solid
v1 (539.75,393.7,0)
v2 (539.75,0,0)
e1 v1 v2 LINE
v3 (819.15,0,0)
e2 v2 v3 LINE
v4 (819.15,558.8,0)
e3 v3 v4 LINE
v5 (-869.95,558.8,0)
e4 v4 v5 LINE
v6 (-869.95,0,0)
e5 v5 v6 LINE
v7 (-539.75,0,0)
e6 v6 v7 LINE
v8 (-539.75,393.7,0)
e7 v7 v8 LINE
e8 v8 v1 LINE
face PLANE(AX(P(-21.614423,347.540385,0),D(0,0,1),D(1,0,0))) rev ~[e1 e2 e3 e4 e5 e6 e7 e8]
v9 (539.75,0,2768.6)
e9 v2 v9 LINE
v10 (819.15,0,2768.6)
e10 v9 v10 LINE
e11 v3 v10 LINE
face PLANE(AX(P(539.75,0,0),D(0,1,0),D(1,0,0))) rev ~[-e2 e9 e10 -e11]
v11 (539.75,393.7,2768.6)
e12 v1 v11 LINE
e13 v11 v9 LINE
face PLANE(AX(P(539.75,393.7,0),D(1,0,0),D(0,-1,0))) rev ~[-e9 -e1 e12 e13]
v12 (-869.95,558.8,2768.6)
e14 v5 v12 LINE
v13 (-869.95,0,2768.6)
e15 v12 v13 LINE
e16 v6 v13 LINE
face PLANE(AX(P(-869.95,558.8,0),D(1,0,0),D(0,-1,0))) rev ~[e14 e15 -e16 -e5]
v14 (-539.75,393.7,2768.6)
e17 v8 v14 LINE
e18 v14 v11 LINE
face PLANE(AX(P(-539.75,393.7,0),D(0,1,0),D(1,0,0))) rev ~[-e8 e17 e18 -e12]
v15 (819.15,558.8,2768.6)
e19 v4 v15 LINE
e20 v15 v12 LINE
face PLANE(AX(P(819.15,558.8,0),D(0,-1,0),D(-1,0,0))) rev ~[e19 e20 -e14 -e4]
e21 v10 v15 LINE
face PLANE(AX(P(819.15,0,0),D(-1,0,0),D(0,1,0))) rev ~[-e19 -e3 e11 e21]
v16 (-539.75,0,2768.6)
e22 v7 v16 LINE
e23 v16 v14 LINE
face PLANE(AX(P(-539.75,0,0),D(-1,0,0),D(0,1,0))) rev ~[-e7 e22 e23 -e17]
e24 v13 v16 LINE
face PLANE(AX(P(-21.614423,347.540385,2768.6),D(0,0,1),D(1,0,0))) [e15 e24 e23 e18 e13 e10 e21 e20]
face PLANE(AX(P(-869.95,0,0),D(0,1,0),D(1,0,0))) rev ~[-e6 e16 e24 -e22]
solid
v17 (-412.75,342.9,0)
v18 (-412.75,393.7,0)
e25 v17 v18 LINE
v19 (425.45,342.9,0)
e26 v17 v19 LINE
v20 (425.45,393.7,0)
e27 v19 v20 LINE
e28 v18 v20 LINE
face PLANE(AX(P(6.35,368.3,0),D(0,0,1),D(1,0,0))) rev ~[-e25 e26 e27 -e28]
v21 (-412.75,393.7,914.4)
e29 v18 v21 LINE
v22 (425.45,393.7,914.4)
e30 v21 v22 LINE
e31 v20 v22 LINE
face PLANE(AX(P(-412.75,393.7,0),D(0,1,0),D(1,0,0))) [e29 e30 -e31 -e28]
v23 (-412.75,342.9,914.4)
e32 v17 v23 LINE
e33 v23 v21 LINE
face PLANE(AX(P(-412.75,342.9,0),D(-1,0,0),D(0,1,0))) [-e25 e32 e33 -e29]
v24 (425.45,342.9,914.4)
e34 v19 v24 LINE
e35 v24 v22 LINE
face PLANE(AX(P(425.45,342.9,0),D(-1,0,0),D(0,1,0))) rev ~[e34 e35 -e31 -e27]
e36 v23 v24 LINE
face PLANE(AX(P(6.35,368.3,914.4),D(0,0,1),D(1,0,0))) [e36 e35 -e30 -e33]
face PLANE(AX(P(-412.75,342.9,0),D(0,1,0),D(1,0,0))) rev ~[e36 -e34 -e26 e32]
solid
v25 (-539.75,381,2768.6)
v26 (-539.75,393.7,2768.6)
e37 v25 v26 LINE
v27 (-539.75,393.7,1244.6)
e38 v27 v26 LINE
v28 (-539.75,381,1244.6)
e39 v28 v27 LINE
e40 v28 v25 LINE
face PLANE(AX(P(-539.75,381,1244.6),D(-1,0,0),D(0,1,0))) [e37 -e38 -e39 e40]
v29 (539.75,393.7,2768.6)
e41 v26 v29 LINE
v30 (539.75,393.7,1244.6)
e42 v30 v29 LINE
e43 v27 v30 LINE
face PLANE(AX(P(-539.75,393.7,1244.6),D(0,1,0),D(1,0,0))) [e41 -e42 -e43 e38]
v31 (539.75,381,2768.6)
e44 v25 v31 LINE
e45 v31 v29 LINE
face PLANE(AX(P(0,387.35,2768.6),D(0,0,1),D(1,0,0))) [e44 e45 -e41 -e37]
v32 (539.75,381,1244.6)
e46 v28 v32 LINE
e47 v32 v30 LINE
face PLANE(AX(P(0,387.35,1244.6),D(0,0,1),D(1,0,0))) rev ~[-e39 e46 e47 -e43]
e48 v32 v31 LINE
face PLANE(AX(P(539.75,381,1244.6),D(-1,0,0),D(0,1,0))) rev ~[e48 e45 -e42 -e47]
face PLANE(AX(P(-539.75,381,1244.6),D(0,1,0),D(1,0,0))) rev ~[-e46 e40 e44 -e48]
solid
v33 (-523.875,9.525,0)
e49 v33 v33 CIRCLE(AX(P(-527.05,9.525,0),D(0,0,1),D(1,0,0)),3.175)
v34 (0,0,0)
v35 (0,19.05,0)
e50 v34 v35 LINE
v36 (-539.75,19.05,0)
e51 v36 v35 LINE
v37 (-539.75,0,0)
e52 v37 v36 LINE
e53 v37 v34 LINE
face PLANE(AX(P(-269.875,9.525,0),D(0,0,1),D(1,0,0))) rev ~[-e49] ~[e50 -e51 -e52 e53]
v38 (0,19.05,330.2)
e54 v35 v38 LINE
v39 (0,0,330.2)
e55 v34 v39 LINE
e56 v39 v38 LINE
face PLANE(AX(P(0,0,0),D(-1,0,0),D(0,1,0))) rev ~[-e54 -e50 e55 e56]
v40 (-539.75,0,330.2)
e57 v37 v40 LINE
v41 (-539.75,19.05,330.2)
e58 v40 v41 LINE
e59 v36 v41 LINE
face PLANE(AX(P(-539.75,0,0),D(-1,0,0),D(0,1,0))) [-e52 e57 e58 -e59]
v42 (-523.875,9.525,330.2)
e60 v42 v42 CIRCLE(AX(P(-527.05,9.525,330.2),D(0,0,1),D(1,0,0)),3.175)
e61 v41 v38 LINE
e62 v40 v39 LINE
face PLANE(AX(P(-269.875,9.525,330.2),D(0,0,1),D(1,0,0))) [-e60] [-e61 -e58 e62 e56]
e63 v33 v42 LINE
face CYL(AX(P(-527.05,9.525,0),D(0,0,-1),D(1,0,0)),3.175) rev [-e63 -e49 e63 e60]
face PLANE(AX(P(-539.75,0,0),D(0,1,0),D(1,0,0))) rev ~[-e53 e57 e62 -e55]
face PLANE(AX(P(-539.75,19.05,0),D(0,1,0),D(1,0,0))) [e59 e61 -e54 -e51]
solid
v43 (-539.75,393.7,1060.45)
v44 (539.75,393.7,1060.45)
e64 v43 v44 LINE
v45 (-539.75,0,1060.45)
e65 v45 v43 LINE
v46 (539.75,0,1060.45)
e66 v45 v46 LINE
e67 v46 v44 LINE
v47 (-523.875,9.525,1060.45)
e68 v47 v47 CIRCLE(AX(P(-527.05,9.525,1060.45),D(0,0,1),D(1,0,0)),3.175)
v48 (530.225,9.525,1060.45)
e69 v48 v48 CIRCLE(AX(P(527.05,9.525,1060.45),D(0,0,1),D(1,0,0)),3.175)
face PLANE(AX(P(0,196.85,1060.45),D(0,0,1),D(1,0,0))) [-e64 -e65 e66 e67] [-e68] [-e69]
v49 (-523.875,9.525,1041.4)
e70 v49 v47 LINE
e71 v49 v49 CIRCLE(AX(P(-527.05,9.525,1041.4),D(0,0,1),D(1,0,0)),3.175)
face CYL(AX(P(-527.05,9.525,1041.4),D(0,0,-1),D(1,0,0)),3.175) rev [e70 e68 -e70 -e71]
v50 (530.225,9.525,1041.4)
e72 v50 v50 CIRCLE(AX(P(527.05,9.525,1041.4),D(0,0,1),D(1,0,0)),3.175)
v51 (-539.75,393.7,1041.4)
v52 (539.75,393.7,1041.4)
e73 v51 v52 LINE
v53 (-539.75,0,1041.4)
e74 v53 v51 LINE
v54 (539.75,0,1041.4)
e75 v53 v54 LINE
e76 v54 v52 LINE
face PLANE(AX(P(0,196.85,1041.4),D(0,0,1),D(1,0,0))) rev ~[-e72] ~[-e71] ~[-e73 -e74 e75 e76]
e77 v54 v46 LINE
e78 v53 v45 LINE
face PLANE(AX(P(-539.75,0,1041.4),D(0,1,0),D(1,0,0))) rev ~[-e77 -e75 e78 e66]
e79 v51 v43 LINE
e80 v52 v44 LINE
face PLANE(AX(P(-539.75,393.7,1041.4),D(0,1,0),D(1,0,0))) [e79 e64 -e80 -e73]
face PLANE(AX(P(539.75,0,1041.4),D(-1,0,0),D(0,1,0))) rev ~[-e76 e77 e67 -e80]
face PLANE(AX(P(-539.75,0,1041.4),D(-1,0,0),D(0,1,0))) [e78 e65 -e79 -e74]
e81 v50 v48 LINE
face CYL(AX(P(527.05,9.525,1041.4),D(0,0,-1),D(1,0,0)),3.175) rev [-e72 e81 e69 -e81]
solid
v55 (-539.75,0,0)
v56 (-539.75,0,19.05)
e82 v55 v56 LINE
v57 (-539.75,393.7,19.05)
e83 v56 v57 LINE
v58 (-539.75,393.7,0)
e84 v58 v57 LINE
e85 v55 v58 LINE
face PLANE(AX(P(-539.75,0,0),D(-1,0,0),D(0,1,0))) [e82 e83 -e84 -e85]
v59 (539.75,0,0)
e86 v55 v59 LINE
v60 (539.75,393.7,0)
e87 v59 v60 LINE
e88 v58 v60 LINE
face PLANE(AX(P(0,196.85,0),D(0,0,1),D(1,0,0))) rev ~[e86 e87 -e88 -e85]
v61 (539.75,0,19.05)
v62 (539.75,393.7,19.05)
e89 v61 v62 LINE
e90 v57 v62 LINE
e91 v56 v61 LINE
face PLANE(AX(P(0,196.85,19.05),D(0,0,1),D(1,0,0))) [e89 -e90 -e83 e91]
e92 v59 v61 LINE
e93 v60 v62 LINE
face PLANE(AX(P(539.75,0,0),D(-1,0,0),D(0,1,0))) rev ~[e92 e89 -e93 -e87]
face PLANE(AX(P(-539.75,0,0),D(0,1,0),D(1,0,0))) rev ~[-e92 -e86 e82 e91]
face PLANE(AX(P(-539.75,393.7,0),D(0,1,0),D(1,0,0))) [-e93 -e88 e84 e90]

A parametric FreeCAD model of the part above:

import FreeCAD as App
import Part
import Sketcher

V = App.Vector
Q = App.Units.Quantity


def add_polygon(sketch, points):
    """Adds a closed chain of lines whose ends are joined by coincident constraints."""
    first, n = sketch.GeometryCount, len(points)
    for a, b in zip(points, points[1:] + points[:1]):
        sketch.addGeometry(Part.LineSegment(App.Vector(*a, 0), App.Vector(*b, 0)), False)
    for i in range(n):
        sketch.addConstraint(Sketcher.Constraint("Coincident", first + i, 2, first + (i + 1) % n, 1))

doc = App.newDocument("Part")
body = doc.addObject("PartDesign::Body", "Body")

sketch1 = doc.addObject("Sketcher::SketchObject", "Sketch")
body.addObject(sketch1)
sketch1.AttachmentSupport = (doc.XY_Plane, [""])
sketch1.MapMode = "FlatFace"
add_polygon(sketch1, [(-539.75, 0), (-539.75, 393.7), (539.75, 393.7), (539.75, 0), (819.15, 0), (819.15, 558.8), (-869.95, 558.8), (-869.95, 0)])
sketch1.addConstraint([
    Sketcher.Constraint("Vertical", 0),
    Sketcher.Constraint("Horizontal", 1),
    Sketcher.Constraint("Vertical", 2),
    Sketcher.Constraint("Horizontal", 3),
    Sketcher.Constraint("Vertical", 4),
    Sketcher.Constraint("Horizontal", 5),
    Sketcher.Constraint("Vertical", 6),
    Sketcher.Constraint("Horizontal", 7),
    Sketcher.Constraint("Symmetric", 2, 2, 7, 2, -1, 1),
    Sketcher.Constraint("PointOnObject", 2, 2, -1),
    Sketcher.Constraint("DistanceX", 3, 1, 3, 2, Q("11 in")),
    Sketcher.Constraint("DistanceX", 7, 1, 7, 2, Q("13 in")),
    Sketcher.Constraint("DistanceY", 4, 1, 4, 2, Q("22 in")),
    Sketcher.Constraint("DistanceX", 1, 1, 1, 2, Q("42.5 in")),
    Sketcher.Constraint("DistanceY", 0, 1, 0, 2, Q("15.5 in")),
])
pad1 = doc.addObject("PartDesign::Pad", "Pad")
body.addObject(pad1)
pad1.Profile = sketch1
pad1.Length = Q("109 in")
body2 = doc.addObject("PartDesign::Body", "Body001")

sketch2 = doc.addObject("Sketcher::SketchObject", "Sketch001")
body2.addObject(sketch2)
sketch2.AttachmentSupport = (doc.getObject("XY_Plane001"), [""])
sketch2.MapMode = "FlatFace"
sketch2.AttachmentOffset = App.Placement(V(0, 0, 49 * 25.4), App.Rotation())
add_polygon(sketch2, [(-539.75, 393.7), (-539.75, 381), (539.75, 381), (539.75, 393.7)])
sketch2.addConstraint([
    Sketcher.Constraint("Vertical", 0),
    Sketcher.Constraint("Horizontal", 1),
    Sketcher.Constraint("Vertical", 2),
    Sketcher.Constraint("Horizontal", 3),
    Sketcher.Constraint("DistanceX", 1, 1, 1, 2, Q("42.5 in")),
    Sketcher.Constraint("DistanceY", 0, 2, 0, 1, Q("0.5 in")),
    Sketcher.Constraint("DistanceY", -1, 1, 0, 2, Q("15 in")),
    Sketcher.Constraint("DistanceX", 0, 2, -1, 1, Q("21.25 in")),
])
pad2 = doc.addObject("PartDesign::Pad", "Pad001")
body2.addObject(pad2)
pad2.Profile = sketch2
pad2.Length = Q("60 in")
body3 = doc.addObject("PartDesign::Body", "Body002")

sketch3 = doc.addObject("Sketcher::SketchObject", "Sketch002")
body3.addObject(sketch3)
sketch3.AttachmentSupport = (doc.getObject("XY_Plane002"), [""])
sketch3.MapMode = "FlatFace"
add_polygon(sketch3, [(-539.75, 393.7), (-539.75, 0), (539.75, 0), (539.75, 393.7)])
sketch3.addConstraint([
    Sketcher.Constraint("Vertical", 0),
    Sketcher.Constraint("Horizontal", 1),
    Sketcher.Constraint("Vertical", 2),
    Sketcher.Constraint("Horizontal", 3),
    Sketcher.Constraint("Symmetric", 0, 2, 1, 2, -1, 1),
    Sketcher.Constraint("DistanceX", 1, 1, 1, 2, Q("42.5 in")),
    Sketcher.Constraint("DistanceY", 0, 2, 0, 1, Q("15.5 in")),
])
pad3 = doc.addObject("PartDesign::Pad", "Pad002")
body3.addObject(pad3)
pad3.Profile = sketch3
pad3.Length = Q("0.75 in")
body4 = doc.addObject("PartDesign::Body", "Body003")

sketch4 = doc.addObject("Sketcher::SketchObject", "Sketch003")
body4.addObject(sketch4)
sketch4.AttachmentSupport = (doc.getObject("XY_Plane003"), [""])
sketch4.MapMode = "FlatFace"
add_polygon(sketch4, [(-412.75, 393.7), (-412.75, 342.9), (425.45, 342.9), (425.45, 393.7)])
sketch4.addConstraint([
    Sketcher.Constraint("Vertical", 0),
    Sketcher.Constraint("Horizontal", 1),
    Sketcher.Constraint("Vertical", 2),
    Sketcher.Constraint("Horizontal", 3),
    Sketcher.Constraint("DistanceX", 1, 1, 1, 2, Q("33 in")),
    Sketcher.Constraint("DistanceY", 0, 2, 0, 1, Q("2 in")),
    Sketcher.Constraint("DistanceY", -1, 1, 0, 2, Q("13.5 in")),
    Sketcher.Constraint("DistanceX", 0, 2, -1, 1, Q("16.25 in")),
])
pad4 = doc.addObject("PartDesign::Pad", "Pad003")
body4.addObject(pad4)
pad4.Profile = sketch4
pad4.Length = Q("36 in")
body5 = doc.addObject("PartDesign::Body", "Body004")

sketch5 = doc.addObject("Sketcher::SketchObject", "Sketch004")
body5.addObject(sketch5)
sketch5.AttachmentSupport = (doc.getObject("XY_Plane004"), [""])
sketch5.MapMode = "FlatFace"
sketch5.AttachmentOffset = App.Placement(V(0, 0, 41 * 25.4), App.Rotation())
add_polygon(sketch5, [(-539.75, 393.7), (-539.75, 0), (539.75, 0), (539.75, 393.7)])
sketch5.addGeometry(Part.Circle(V(-527.05, 9.525, 0), V(0, 0, 1), 3.175), False)
sketch5.addGeometry(Part.Circle(V(527.05, 9.525, 0), V(0, 0, 1), 3.175), False)
sketch5.addConstraint([
    Sketcher.Constraint("Vertical", 0),
    Sketcher.Constraint("Horizontal", 1),
    Sketcher.Constraint("Vertical", 2),
    Sketcher.Constraint("Horizontal", 3),
    Sketcher.Constraint("Equal", 4, 5),
    Sketcher.Constraint("Symmetric", 0, 2, 1, 2, -1, 1),
    Sketcher.Constraint("Symmetric", 4, 3, 5, 3, -2),
    Sketcher.Constraint("Diameter", 4, Q("0.25 in")),
    Sketcher.Constraint("DistanceX", 1, 1, 1, 2, Q("42.5 in")),
    Sketcher.Constraint("DistanceY", 0, 2, 0, 1, Q("15.5 in")),
    Sketcher.Constraint("DistanceX", 0, 2, 5, 3, Q("42 in")),
    Sketcher.Constraint("DistanceY", -1, 1, 4, 3, Q("0.375 in")),
])
pad5 = doc.addObject("PartDesign::Pad", "Pad004")
body5.addObject(pad5)
pad5.Profile = sketch5
pad5.Length = Q("0.75 in")
body6 = doc.addObject("PartDesign::Body", "Body005")

sketch6 = doc.addObject("Sketcher::SketchObject", "Sketch005")
body6.addObject(sketch6)
sketch6.AttachmentSupport = (doc.getObject("XY_Plane005"), [""])
sketch6.MapMode = "FlatFace"
add_polygon(sketch6, [(-539.75, 19.05), (-539.75, 0), (0, 0), (0, 19.05)])
sketch6.addGeometry(Part.Circle(V(-527.05, 9.525, 0), V(0, 0, 1), 3.175), False)
sketch6.addConstraint([
    Sketcher.Constraint("Vertical", 0),
    Sketcher.Constraint("Horizontal", 1),
    Sketcher.Constraint("Vertical", 2),
    Sketcher.Constraint("Horizontal", 3),
    Sketcher.Constraint("Coincident", 1, 2, -1, 1),
    Sketcher.Constraint("Diameter", 4, Q("0.25 in")),
    Sketcher.Constraint("DistanceX", 1, 1, 1, 2, Q("21.25 in")),
    Sketcher.Constraint("DistanceY", 0, 2, 0, 1, Q("0.75 in")),
    Sketcher.Constraint("DistanceX", 0, 2, 4, 3, Q("0.5 in")),
    Sketcher.Constraint("DistanceY", -1, 1, 4, 3, Q("0.375 in")),
])
pad6 = doc.addObject("PartDesign::Pad", "Pad005")
body6.addObject(pad6)
pad6.Profile = sketch6
pad6.Length = Q("13 in")

doc.recompute()
